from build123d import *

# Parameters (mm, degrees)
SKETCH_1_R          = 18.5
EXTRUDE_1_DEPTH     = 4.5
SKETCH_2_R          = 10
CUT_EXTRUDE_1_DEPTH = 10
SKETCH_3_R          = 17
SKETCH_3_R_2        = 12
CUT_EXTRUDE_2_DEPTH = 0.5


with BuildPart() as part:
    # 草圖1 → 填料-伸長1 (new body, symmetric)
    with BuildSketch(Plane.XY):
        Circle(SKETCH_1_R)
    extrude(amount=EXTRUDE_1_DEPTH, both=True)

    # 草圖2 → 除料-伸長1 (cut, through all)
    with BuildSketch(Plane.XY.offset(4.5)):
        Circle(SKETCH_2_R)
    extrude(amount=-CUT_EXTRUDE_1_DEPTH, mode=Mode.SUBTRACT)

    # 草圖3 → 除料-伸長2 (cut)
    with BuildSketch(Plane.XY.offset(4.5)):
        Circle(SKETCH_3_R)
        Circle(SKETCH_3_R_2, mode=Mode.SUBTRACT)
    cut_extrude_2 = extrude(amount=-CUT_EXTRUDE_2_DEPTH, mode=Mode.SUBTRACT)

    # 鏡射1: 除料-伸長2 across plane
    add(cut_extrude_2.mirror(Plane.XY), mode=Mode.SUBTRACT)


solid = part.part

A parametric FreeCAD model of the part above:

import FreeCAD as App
import Part
import Sketcher

doc = App.newDocument("Part")
body = doc.addObject("PartDesign::Body", "Body")

# Sketch on XY plane
sketch1 = doc.addObject("Sketcher::SketchObject", "Sketch")
body.addObject(sketch1)
sketch1.AttachmentSupport = (doc.XY_Plane, [""])
sketch1.MapMode = "FlatFace"
sketch1.addGeometry(Part.Circle(App.Vector(0, 0, 0), App.Vector(0, 0, 1), 18.5), False)
sketch1.addConstraint([
    Sketcher.Constraint("Coincident", 0, 3, -1, 1),
    Sketcher.Constraint("Diameter", 0, 37.0),
])
pad1 = doc.addObject("PartDesign::Pad", "Pad")
body.addObject(pad1)
pad1.Profile = sketch1
pad1.Length = 9
pad1.Midplane = True

# Sketch on XY plane
sketch2 = doc.addObject("Sketcher::SketchObject", "Sketch001")
body.addObject(sketch2)
sketch2.AttachmentSupport = (doc.XY_Plane, [""])
sketch2.MapMode = "FlatFace"
sketch2.AttachmentOffset = App.Placement(App.Vector(0, 0, 4.5), App.Rotation())
sketch2.addGeometry(Part.Circle(App.Vector(0, 0, 0), App.Vector(0, 0, 1), 10), False)
sketch2.addConstraint([
    Sketcher.Constraint("Coincident", 0, 3, -1, 1),
    Sketcher.Constraint("Diameter", 0, 20.0),
])
pocket1 = doc.addObject("PartDesign::Pocket", "Pocket")
body.addObject(pocket1)
pocket1.Profile = sketch2
pocket1.Type = "ThroughAll"

# Sketch on XY plane
sketch3 = doc.addObject("Sketcher::SketchObject", "Sketch002")
body.addObject(sketch3)
sketch3.AttachmentSupport = (doc.XY_Plane, [""])
sketch3.MapMode = "FlatFace"
sketch3.AttachmentOffset = App.Placement(App.Vector(0, 0, 4.5), App.Rotation())
sketch3.addGeometry([
    Part.Circle(App.Vector(0, 0, 0), App.Vector(0, 0, 1), 17),
    Part.Circle(App.Vector(0, 0, 0), App.Vector(0, 0, 1), 12),
], False)
sketch3.addConstraint([
    Sketcher.Constraint("Coincident", 0, 3, -1, 1),
    Sketcher.Constraint("Coincident", 1, 3, -1, 1),
    Sketcher.Constraint("Diameter", 0, 34.0),
    Sketcher.Constraint("Diameter", 1, 24.0),
])
pocket2 = doc.addObject("PartDesign::Pocket", "Pocket001")
body.addObject(pocket2)
pocket2.Profile = sketch3
pocket2.Length = 0.5
doc.recompute()

mirrored = doc.addObject("PartDesign::Mirrored", "Mirrored")
body.addObject(mirrored)
mirrored.Originals = [pocket2]
mirrored.MirrorPlane = (doc.XY_Plane, [""])
body.Tip = mirrored

doc.recompute()
